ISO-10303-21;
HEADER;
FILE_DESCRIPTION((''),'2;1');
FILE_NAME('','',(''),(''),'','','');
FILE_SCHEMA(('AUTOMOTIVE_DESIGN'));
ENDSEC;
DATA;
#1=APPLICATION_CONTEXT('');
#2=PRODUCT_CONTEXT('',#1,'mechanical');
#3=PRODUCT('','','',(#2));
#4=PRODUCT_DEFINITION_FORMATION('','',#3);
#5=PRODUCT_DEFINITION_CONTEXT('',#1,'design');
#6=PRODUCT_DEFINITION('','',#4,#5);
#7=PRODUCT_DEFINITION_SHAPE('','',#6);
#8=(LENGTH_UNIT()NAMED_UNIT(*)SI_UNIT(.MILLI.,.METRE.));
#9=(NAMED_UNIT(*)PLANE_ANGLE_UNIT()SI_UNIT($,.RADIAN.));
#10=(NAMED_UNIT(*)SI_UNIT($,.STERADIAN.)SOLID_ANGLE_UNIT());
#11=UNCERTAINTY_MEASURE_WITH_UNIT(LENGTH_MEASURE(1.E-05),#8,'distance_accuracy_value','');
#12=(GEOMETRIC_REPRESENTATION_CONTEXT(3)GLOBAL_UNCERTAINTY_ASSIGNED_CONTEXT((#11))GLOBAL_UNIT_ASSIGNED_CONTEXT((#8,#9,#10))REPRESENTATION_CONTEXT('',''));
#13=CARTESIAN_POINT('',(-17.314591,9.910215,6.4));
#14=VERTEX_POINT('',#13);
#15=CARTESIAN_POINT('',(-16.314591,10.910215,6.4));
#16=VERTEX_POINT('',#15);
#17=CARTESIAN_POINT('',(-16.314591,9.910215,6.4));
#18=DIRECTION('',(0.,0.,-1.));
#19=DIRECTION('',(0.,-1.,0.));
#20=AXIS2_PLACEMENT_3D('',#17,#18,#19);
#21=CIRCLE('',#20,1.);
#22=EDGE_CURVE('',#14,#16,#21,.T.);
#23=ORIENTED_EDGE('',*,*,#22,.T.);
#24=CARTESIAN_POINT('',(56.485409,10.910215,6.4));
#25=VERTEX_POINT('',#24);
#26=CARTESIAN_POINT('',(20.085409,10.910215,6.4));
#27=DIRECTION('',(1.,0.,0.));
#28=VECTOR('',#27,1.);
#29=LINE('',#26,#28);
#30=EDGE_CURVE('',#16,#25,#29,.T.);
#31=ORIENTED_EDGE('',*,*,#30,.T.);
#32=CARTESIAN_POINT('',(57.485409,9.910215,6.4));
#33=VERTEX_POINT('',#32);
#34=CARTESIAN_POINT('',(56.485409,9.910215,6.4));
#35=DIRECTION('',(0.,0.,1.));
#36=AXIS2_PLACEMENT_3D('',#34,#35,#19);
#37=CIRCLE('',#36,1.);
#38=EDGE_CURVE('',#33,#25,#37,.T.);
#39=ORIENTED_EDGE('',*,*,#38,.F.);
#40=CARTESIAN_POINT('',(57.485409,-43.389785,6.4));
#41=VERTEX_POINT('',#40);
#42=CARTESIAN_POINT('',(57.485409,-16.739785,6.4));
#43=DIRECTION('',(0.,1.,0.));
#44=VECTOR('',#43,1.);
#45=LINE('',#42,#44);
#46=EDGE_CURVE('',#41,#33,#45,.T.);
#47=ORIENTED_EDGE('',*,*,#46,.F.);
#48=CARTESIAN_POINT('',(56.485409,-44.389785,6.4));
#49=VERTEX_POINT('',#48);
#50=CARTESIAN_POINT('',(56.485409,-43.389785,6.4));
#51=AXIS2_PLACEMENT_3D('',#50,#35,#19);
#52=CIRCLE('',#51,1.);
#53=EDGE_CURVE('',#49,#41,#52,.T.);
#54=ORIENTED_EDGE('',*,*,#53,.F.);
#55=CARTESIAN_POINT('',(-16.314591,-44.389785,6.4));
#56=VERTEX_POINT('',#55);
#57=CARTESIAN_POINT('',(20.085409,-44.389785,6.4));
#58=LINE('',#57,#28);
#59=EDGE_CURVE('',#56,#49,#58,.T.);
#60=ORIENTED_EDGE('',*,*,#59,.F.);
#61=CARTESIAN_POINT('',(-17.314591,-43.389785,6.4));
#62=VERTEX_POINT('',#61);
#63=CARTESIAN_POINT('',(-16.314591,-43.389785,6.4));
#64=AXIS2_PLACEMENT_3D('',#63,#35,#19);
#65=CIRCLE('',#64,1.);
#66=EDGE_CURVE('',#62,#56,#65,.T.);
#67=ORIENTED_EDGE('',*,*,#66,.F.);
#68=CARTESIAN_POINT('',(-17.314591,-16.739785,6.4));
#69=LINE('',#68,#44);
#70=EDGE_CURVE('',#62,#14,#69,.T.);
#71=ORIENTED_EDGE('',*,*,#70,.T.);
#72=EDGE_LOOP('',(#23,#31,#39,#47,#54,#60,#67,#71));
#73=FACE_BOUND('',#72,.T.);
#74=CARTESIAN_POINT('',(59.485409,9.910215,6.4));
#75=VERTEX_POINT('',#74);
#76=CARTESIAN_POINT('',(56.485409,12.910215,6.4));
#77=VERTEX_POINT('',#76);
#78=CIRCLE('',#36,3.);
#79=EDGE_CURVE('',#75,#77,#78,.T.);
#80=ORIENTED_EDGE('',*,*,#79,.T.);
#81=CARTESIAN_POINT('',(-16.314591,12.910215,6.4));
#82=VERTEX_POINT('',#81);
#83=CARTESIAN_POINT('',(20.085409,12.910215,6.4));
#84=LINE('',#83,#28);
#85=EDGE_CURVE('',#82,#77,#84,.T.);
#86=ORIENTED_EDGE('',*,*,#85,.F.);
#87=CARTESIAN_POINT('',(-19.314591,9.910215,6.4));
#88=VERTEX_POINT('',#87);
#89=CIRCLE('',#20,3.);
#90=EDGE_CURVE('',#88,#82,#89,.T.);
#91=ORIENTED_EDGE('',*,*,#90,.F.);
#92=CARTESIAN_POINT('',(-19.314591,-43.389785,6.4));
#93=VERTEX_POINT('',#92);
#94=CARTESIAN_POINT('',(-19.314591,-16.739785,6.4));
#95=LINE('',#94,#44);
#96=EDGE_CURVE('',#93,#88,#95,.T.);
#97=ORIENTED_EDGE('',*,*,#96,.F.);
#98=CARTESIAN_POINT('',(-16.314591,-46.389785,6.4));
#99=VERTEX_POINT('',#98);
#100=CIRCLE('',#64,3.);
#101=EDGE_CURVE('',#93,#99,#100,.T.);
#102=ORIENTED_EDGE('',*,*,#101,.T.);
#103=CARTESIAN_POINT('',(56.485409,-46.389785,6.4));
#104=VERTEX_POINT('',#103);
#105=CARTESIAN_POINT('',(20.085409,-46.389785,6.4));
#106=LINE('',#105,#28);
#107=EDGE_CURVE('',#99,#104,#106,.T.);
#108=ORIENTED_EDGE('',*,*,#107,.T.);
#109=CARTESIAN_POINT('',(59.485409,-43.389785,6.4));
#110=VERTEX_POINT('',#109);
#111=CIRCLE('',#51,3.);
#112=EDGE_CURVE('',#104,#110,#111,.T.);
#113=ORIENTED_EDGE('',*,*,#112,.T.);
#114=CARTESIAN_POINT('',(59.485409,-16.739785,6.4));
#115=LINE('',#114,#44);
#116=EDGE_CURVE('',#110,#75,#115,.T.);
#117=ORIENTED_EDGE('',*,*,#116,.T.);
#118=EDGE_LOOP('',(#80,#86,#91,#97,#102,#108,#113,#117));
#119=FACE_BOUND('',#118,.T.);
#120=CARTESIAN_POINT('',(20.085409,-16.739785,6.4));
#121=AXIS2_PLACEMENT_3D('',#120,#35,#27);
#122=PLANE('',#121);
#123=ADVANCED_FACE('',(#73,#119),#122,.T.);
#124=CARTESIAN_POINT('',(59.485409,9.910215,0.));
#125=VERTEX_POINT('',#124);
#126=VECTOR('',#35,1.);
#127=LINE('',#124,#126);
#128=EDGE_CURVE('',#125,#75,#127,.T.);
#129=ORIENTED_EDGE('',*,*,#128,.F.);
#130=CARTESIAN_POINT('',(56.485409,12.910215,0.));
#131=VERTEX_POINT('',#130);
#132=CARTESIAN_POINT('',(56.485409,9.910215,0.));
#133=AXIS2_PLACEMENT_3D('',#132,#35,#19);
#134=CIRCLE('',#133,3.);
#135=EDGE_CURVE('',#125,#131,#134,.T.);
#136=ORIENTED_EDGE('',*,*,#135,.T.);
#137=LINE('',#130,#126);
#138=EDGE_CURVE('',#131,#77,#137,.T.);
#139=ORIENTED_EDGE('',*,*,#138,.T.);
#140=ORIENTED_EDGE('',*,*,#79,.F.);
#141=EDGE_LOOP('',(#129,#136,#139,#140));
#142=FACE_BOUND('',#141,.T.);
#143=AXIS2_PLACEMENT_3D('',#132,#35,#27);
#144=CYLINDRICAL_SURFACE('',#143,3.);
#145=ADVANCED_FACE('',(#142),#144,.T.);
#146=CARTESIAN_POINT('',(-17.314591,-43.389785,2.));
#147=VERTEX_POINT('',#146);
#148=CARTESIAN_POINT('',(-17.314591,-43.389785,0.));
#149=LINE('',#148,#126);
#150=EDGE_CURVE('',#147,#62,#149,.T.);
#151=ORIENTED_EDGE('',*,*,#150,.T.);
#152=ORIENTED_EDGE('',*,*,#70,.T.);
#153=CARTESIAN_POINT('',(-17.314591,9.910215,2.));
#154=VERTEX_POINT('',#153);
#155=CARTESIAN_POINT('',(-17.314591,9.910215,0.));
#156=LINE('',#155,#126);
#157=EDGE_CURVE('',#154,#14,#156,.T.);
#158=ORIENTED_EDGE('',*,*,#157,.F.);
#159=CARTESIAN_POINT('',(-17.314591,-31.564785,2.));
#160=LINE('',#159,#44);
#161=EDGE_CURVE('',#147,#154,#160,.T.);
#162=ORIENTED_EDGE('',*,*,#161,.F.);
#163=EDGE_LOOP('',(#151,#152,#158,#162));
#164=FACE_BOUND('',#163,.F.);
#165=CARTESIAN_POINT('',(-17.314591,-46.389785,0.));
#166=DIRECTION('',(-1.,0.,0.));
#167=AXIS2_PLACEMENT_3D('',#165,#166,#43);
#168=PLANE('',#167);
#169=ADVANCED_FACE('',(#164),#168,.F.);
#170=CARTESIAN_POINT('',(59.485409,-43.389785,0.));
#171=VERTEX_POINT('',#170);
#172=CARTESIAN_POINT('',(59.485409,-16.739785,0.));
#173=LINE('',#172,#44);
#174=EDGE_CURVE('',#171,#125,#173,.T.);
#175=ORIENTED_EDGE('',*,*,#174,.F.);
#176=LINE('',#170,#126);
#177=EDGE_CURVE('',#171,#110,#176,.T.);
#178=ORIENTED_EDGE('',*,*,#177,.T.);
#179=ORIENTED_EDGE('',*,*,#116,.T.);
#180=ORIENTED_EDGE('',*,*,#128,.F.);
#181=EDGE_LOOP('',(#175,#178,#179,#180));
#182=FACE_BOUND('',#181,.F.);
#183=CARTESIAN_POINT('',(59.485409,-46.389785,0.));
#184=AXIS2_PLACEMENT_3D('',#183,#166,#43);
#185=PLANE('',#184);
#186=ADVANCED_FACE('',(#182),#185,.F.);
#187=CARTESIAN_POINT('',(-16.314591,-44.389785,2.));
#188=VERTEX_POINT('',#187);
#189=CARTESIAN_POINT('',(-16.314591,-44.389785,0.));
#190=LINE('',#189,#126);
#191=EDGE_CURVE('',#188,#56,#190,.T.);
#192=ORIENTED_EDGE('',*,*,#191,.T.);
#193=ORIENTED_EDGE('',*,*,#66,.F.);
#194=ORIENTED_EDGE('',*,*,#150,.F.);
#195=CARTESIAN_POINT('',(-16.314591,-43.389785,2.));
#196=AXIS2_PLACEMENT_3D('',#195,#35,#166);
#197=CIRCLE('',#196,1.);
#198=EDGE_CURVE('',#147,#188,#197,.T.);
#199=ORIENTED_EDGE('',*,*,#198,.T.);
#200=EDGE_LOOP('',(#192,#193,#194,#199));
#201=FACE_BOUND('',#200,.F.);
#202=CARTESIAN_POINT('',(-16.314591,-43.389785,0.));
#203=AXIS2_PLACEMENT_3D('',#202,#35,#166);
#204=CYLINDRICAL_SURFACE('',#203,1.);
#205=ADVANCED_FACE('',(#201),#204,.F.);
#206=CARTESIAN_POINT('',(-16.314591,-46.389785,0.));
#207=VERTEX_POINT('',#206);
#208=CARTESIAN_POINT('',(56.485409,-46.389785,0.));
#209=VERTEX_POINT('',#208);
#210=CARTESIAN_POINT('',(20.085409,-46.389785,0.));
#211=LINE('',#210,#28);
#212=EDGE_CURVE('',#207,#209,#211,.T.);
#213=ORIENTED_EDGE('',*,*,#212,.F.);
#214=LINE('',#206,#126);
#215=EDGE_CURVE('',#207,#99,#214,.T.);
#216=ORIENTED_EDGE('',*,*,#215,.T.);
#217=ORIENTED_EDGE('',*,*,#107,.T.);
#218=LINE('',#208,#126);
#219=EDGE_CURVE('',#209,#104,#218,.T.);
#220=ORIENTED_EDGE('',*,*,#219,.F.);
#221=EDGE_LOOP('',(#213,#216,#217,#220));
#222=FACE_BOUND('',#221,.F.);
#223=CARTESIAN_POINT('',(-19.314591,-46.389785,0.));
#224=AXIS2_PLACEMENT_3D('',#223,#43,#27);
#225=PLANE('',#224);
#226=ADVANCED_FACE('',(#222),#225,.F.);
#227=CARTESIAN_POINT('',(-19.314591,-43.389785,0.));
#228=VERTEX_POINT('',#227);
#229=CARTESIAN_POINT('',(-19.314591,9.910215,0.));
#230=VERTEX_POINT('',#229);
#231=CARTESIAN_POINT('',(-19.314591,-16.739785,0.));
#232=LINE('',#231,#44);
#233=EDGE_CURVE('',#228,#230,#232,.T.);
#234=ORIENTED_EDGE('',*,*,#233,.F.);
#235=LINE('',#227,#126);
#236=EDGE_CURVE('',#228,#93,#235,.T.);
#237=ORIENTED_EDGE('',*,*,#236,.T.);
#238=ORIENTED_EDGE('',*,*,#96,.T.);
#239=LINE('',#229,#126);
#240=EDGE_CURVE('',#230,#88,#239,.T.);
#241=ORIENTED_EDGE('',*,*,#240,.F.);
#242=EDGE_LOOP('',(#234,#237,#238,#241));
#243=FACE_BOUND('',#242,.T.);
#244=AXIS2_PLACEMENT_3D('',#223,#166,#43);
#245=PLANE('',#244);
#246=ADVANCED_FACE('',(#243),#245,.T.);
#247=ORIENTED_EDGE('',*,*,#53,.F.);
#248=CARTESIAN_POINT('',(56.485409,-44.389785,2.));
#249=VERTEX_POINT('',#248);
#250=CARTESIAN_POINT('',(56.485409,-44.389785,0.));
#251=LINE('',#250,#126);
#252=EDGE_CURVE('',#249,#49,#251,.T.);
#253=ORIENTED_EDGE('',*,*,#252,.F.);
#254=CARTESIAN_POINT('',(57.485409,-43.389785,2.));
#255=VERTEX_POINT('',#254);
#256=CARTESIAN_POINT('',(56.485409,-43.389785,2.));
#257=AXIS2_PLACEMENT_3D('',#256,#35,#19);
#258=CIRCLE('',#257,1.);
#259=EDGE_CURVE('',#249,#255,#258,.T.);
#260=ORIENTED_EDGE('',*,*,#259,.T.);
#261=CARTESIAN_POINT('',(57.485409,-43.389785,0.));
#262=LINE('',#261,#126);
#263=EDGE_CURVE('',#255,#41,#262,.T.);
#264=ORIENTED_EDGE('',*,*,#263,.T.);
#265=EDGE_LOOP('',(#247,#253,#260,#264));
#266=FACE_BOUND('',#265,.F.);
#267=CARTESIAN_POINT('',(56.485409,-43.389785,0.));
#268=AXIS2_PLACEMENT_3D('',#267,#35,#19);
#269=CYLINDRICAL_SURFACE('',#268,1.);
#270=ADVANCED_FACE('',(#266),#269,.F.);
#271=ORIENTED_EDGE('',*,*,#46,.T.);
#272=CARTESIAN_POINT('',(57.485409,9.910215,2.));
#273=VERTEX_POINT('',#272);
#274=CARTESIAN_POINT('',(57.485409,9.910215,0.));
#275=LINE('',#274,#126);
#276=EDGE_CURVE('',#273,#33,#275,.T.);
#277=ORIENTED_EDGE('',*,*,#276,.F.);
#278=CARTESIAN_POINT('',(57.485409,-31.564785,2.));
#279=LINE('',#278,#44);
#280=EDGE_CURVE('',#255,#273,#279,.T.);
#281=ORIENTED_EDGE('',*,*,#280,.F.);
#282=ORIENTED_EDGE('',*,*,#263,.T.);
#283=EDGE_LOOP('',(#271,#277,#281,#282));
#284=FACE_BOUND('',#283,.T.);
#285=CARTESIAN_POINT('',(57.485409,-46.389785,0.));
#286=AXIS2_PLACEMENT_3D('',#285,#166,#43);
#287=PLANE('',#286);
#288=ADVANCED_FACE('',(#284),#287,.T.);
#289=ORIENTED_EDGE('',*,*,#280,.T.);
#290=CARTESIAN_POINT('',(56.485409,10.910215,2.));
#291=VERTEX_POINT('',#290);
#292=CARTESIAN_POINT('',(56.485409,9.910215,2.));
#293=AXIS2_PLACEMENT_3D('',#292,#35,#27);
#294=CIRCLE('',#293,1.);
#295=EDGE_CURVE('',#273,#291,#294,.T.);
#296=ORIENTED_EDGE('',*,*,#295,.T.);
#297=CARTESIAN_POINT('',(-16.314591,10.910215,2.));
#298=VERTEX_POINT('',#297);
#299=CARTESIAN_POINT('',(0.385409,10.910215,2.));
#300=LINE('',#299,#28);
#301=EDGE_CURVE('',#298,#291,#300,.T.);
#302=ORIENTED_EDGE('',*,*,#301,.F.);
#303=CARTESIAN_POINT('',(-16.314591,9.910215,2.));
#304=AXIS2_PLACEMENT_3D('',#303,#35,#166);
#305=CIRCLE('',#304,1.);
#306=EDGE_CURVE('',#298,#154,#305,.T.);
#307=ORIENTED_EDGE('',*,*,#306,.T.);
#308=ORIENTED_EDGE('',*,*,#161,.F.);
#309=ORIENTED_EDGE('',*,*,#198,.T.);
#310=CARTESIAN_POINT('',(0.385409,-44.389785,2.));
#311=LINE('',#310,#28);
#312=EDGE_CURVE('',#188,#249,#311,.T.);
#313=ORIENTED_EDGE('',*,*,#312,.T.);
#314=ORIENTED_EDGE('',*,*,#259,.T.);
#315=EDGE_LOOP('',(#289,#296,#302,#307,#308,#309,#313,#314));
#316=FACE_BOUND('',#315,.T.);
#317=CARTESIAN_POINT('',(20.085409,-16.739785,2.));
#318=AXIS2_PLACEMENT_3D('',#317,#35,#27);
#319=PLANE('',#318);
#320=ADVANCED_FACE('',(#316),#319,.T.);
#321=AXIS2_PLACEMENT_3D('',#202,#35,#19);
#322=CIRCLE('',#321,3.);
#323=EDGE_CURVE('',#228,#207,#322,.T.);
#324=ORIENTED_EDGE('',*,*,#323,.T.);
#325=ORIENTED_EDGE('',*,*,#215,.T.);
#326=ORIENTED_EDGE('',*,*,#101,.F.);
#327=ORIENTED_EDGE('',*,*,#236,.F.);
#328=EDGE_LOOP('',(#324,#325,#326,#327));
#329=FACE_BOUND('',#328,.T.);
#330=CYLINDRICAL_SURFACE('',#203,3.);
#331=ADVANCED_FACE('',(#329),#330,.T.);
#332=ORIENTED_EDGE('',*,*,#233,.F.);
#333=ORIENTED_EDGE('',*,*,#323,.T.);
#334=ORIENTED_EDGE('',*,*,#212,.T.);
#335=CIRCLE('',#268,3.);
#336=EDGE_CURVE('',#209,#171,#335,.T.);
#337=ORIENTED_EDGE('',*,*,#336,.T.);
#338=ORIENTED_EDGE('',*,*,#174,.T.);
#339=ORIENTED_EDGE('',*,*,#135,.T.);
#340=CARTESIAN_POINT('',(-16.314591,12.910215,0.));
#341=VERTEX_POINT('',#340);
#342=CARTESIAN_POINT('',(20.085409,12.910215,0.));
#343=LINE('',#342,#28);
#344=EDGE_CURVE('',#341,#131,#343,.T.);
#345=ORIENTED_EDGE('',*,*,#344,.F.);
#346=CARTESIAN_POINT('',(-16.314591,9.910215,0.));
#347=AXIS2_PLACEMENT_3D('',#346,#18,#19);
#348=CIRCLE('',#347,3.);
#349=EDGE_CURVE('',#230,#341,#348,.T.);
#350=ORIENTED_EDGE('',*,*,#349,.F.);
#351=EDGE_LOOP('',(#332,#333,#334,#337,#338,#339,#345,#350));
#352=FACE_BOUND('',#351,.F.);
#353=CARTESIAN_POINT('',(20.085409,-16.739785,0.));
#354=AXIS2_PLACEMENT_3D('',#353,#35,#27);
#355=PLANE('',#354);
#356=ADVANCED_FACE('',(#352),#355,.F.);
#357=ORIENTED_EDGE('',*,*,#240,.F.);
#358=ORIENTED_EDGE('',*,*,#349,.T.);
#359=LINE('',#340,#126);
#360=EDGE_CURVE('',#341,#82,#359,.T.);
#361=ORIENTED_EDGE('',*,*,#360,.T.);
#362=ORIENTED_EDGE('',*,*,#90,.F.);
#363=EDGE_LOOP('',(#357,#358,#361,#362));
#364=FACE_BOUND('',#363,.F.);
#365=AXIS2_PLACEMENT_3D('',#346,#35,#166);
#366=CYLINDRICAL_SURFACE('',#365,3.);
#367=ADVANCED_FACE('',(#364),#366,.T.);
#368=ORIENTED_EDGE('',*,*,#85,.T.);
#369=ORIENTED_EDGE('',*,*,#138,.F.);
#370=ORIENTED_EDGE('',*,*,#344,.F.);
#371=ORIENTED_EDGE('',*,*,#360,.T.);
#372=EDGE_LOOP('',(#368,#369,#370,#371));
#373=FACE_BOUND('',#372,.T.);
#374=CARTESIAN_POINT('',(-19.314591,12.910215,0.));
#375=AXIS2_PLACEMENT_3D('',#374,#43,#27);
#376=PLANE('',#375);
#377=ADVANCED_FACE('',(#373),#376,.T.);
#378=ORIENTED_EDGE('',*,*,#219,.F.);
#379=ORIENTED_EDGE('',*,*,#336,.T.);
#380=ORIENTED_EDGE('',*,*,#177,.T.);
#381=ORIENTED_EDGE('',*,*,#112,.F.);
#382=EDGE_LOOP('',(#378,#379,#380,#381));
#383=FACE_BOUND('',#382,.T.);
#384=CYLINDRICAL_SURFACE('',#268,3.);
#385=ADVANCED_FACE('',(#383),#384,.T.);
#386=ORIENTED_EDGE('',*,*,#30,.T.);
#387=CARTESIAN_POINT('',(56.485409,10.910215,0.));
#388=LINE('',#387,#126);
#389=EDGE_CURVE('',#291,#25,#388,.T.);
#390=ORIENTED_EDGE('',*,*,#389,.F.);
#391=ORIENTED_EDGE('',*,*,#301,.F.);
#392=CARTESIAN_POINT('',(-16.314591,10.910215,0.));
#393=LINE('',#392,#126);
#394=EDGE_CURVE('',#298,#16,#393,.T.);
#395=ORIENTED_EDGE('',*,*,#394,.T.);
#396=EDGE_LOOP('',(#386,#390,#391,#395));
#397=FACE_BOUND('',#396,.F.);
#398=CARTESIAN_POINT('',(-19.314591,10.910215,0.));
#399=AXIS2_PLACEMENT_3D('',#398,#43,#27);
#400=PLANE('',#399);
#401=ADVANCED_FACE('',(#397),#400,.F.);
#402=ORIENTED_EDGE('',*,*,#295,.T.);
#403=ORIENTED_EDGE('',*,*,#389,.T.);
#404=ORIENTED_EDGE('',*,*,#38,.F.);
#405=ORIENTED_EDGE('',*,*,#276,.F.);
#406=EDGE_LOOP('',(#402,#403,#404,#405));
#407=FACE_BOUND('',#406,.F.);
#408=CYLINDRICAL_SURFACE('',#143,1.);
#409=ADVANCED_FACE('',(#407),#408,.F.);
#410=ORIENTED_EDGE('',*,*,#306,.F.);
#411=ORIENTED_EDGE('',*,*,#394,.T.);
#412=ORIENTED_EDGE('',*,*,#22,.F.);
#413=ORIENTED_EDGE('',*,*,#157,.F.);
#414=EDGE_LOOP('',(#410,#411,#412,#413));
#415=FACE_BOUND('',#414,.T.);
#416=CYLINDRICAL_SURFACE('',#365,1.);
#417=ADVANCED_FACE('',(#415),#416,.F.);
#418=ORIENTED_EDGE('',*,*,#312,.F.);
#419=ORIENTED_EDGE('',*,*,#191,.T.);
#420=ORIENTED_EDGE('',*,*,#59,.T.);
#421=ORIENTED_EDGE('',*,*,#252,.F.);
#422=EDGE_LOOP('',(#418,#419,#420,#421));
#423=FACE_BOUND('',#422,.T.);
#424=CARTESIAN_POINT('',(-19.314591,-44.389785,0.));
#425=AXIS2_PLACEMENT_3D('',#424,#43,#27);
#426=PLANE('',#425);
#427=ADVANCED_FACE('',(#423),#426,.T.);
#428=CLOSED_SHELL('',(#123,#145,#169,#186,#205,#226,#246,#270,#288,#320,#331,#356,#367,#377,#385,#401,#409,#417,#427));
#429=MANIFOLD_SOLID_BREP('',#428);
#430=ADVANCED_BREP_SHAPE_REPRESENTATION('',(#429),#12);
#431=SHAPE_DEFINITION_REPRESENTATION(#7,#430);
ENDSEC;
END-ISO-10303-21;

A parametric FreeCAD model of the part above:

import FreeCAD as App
import Part
import Sketcher


def edges_at(feature, points):
    """Names of the edges that pass closest to the given points."""
    edges = feature.Shape.Edges
    near = lambda p: min(range(len(edges)), key=lambda i: edges[i].distToShape(Part.Vertex(*p))[0])
    return sorted({f"Edge{near(p) + 1}" for p in points})


def faces_at(feature, points):
    """Names of the faces that lie closest to the given points."""
    faces = feature.Shape.Faces
    near = lambda p: min(range(len(faces)), key=lambda i: faces[i].distToShape(Part.Vertex(*p))[0])
    return sorted({f"Face{near(p) + 1}" for p in points})

doc = App.newDocument("Part")
params = doc.addObject("Spreadsheet::Sheet", "Params")
for row, (alias, value) in enumerate([
    ("sketch1_width", "78.8 mm"),
    ("sketch1_height", "59.3 mm"),
    ("pad1_length", "6.4 mm"),
    ("fillet_radius", "3 mm"),
    ("thickness_wall", "2 mm"),
], start=1):
    params.set(f"A{row}", alias)
    params.set(f"B{row}", "=" + value)
    params.setAlias(f"B{row}", alias)

body = doc.addObject("PartDesign::Body", "Body")

# Sketch on XY plane
sketch1 = body.newObject("Sketcher::SketchObject", "Sketch")
sketch1.AttachmentSupport = (doc.getObject("XY_Plane"), [""])
sketch1.MapMode = "FlatFace"
sketch1.addGeometry([
    Part.LineSegment(App.Vector(-19, 13, 0), App.Vector(-19, -46, 0)),
    Part.LineSegment(App.Vector(-19, -46, 0), App.Vector(59, -46, 0)),
    Part.LineSegment(App.Vector(59, -46, 0), App.Vector(59, 13, 0)),
    Part.LineSegment(App.Vector(59, 13, 0), App.Vector(-19, 13, 0)),
], False)
sketch1.addConstraint([
    Sketcher.Constraint("Coincident", 0, 2, 1, 1),
    Sketcher.Constraint("Coincident", 1, 2, 2, 1),
    Sketcher.Constraint("Coincident", 2, 2, 3, 1),
    Sketcher.Constraint("Coincident", 3, 2, 0, 1),
    Sketcher.Constraint("Vertical", 0),
    Sketcher.Constraint("Horizontal", 1),
    Sketcher.Constraint("Vertical", 2),
    Sketcher.Constraint("Horizontal", 3),
    Sketcher.Constraint("DistanceX", 1, 1, 1, 2, 78.8),
    Sketcher.Constraint("DistanceY", 0, 2, 0, 1, 59.3),
    Sketcher.Constraint("DistanceX", 0, 2, -1, 1, 19.314591),
    Sketcher.Constraint("DistanceY", 0, 2, -1, 1, 46.389785),
])
sketch1.setExpression("Constraints[8]", "Params.sketch1_width")
sketch1.setExpression("Constraints[9]", "Params.sketch1_height")
pad1 = body.newObject("PartDesign::Pad", "Pad")
pad1.Profile = sketch1
pad1.setExpression("Length", "Params.pad1_length")
doc.recompute()

fillet = body.newObject("PartDesign::Fillet", "Fillet")
fillet.Base = (pad1, edges_at(pad1, [
    (-19.315, -46.39, 3.2),
    (59.485, -46.39, 3.2),
    (59.485, 12.91, 3.2),
    (-19.315, 12.91, 3.2),
]))
fillet.setExpression("Radius", "Params.fillet_radius")
doc.recompute()

thickness = body.newObject("PartDesign::Thickness", "Thickness")
thickness.Base = (fillet, faces_at(fillet, [(20.085, -16.74, 6.4)]))
thickness.setExpression("Value", "Params.thickness_wall")
thickness.Reversed = True
thickness.Join = "Arc"

doc.recompute()
